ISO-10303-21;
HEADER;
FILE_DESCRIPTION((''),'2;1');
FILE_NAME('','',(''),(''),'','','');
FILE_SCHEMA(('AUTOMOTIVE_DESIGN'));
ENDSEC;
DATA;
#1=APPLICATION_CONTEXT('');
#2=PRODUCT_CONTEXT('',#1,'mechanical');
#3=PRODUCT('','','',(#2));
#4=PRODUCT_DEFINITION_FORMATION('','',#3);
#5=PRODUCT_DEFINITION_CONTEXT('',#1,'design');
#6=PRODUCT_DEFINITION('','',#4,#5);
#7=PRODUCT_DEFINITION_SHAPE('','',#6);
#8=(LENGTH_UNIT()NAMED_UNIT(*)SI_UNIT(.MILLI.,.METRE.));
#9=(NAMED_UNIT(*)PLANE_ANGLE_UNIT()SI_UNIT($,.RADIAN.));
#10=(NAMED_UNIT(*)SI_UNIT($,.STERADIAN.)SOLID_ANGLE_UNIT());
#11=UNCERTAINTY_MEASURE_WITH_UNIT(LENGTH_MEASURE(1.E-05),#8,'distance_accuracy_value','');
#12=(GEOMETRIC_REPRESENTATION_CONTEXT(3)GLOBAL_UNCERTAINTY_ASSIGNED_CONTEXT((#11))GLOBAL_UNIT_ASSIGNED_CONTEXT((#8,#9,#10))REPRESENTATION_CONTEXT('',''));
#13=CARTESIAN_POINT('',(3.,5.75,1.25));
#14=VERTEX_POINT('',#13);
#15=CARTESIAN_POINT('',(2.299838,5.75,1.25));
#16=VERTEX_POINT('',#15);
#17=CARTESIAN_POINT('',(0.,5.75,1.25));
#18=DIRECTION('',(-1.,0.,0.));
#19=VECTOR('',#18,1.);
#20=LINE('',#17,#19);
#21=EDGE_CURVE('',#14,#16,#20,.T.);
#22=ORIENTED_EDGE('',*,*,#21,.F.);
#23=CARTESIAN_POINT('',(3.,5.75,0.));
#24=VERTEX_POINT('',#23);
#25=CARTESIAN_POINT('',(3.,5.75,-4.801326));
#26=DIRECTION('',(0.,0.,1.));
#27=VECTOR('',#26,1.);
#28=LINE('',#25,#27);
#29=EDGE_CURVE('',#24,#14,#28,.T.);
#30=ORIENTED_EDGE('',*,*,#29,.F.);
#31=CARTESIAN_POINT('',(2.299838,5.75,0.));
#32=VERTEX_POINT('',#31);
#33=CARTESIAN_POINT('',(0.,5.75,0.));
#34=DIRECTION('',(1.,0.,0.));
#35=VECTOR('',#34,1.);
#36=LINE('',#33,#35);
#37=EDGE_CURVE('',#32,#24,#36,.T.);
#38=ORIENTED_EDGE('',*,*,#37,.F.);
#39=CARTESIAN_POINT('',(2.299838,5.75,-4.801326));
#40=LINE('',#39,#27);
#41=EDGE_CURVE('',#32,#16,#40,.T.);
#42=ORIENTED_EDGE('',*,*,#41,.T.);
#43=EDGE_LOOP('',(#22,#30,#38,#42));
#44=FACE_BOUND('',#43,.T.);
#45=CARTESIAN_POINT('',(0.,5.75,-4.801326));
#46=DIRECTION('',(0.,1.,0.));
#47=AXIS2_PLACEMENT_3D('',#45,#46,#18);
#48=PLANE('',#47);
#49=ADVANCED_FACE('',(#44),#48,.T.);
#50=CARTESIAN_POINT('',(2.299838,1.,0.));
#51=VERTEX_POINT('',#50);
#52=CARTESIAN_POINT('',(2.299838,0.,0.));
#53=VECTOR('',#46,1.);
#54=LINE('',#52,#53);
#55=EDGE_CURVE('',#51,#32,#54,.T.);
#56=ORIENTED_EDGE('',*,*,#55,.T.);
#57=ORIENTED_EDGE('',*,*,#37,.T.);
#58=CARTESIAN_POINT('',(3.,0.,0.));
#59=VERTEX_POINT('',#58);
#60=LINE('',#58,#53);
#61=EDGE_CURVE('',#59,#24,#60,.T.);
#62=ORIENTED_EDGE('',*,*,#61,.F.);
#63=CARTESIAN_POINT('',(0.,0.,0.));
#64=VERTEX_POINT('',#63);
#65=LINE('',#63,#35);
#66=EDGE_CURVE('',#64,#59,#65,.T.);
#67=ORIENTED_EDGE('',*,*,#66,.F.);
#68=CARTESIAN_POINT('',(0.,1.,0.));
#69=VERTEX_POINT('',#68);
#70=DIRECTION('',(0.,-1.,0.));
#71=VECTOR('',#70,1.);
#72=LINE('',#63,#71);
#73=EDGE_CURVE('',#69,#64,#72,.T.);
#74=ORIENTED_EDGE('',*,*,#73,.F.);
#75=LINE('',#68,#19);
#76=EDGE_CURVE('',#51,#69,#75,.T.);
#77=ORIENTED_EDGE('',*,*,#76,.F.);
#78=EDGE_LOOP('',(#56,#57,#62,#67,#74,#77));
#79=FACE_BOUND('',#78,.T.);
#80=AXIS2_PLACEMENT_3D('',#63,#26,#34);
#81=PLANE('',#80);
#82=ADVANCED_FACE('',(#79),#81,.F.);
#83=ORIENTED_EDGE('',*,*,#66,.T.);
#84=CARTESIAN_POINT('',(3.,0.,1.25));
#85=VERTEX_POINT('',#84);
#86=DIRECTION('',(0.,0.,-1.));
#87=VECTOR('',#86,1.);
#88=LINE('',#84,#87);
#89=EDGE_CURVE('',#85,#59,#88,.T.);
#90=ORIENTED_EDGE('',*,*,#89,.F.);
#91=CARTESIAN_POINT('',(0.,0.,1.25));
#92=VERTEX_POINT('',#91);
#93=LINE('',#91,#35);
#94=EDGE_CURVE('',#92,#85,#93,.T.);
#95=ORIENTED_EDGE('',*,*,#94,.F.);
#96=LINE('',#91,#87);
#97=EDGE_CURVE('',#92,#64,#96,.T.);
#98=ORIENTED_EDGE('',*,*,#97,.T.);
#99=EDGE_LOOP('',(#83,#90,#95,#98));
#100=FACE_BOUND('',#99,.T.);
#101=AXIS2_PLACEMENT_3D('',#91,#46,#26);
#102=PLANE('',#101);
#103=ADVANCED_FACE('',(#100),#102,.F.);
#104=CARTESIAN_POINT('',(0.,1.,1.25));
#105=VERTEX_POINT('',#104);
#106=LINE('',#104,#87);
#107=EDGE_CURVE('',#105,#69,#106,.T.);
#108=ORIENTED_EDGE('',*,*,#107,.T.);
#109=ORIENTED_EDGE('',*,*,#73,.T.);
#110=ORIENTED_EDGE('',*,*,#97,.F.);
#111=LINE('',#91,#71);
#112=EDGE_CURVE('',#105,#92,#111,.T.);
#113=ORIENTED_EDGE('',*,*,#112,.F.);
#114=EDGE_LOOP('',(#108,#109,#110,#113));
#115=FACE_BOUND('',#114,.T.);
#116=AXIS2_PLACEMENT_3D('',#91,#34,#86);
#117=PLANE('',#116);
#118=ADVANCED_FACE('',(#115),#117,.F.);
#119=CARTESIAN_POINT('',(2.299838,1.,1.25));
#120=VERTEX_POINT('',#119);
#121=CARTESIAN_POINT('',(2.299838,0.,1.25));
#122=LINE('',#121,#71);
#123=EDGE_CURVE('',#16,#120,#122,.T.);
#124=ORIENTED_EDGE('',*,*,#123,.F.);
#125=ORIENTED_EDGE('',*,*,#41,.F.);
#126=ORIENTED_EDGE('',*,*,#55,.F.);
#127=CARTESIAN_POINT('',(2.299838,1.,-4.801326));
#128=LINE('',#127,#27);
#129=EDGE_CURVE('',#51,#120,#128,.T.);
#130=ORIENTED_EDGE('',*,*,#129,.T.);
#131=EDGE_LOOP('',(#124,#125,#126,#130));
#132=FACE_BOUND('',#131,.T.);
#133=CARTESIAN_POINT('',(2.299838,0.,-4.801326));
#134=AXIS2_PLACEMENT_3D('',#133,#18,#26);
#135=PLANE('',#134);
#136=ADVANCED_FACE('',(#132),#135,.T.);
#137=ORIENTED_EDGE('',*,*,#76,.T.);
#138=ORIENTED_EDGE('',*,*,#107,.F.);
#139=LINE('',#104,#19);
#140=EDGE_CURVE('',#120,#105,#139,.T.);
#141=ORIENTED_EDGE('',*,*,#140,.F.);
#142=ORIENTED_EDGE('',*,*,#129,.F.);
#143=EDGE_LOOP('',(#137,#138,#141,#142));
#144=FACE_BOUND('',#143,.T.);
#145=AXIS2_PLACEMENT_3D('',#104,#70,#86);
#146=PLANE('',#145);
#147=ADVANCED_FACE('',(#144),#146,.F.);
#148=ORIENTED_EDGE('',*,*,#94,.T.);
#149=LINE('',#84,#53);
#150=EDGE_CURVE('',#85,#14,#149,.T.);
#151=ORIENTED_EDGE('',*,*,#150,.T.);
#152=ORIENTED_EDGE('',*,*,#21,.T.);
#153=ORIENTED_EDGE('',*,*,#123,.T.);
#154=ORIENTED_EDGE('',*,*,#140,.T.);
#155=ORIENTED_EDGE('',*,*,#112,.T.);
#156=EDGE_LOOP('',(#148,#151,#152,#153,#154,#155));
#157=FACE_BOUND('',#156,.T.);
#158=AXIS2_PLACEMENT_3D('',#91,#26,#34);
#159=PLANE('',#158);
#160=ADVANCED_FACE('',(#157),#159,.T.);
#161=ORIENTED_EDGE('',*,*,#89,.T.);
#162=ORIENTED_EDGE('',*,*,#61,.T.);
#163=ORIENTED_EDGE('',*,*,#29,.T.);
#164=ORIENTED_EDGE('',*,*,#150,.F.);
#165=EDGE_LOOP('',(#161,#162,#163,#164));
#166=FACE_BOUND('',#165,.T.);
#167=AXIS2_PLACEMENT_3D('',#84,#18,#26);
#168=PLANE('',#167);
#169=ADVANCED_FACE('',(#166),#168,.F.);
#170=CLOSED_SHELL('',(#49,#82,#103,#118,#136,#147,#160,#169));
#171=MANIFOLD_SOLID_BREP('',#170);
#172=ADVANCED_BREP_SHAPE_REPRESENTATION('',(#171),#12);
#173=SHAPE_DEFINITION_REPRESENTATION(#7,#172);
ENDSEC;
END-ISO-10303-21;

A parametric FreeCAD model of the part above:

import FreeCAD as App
import Part
import Sketcher


def add_polygon(sketch, points):
    """Adds a closed chain of lines whose ends are joined by coincident constraints."""
    first, n = sketch.GeometryCount, len(points)
    for a, b in zip(points, points[1:] + points[:1]):
        sketch.addGeometry(Part.LineSegment(App.Vector(*a, 0), App.Vector(*b, 0)), False)
    for i in range(n):
        sketch.addConstraint(Sketcher.Constraint("Coincident", first + i, 2, first + (i + 1) % n, 1))

doc = App.newDocument("Part")
body = doc.addObject("PartDesign::Body", "Body")

sketch1 = body.newObject("Sketcher::SketchObject", "Sketch")
sketch1.AttachmentSupport = (doc.getObject("XY_Plane"), [""])
sketch1.MapMode = "FlatFace"
add_polygon(sketch1, [(0, 1), (0, 0), (3, 0), (3, 1)])
sketch1.addConstraint([
    Sketcher.Constraint("Vertical", 0),
    Sketcher.Constraint("Horizontal", 1),
    Sketcher.Constraint("Vertical", 2),
    Sketcher.Constraint("Horizontal", 3),
    Sketcher.Constraint("Coincident", 0, 2, -1, 1),
    Sketcher.Constraint("DistanceX", 1, 1, 1, 2, 3.0),
    Sketcher.Constraint("DistanceY", 0, 2, 0, 1, 1.0),
])
pad1 = body.newObject("PartDesign::Pad", "Pad")
pad1.Profile = sketch1
pad1.Length = 1.25

sketch2 = body.newObject("Sketcher::SketchObject", "Sketch001")
sketch2.AttachmentSupport = (doc.getObject("XY_Plane"), [""])
sketch2.MapMode = "FlatFace"
sketch2.AttachmentOffset = App.Placement(App.Vector(0, 0, 1.25), App.Rotation())
add_polygon(sketch2, [(2.299838, 5.75), (2.299838, 1), (3, 1), (3, 5.75)])
sketch2.addConstraint([
    Sketcher.Constraint("Vertical", 0),
    Sketcher.Constraint("Horizontal", 1),
    Sketcher.Constraint("Vertical", 2),
    Sketcher.Constraint("Horizontal", 3),
    Sketcher.Constraint("DistanceY", -1, 1, 0, 2, 1.0),
    Sketcher.Constraint("DistanceX", -1, 1, 1, 2, 3.0),
    Sketcher.Constraint("DistanceY", 0, 2, 0, 1, 4.75),
    Sketcher.Constraint("DistanceX", 1, 1, 1, 2, 0.700162),
])
pad2 = body.newObject("PartDesign::Pad", "Pad001")
pad2.Profile = sketch2
pad2.Length = 1.25
pad2.Reversed = True

doc.recompute()
